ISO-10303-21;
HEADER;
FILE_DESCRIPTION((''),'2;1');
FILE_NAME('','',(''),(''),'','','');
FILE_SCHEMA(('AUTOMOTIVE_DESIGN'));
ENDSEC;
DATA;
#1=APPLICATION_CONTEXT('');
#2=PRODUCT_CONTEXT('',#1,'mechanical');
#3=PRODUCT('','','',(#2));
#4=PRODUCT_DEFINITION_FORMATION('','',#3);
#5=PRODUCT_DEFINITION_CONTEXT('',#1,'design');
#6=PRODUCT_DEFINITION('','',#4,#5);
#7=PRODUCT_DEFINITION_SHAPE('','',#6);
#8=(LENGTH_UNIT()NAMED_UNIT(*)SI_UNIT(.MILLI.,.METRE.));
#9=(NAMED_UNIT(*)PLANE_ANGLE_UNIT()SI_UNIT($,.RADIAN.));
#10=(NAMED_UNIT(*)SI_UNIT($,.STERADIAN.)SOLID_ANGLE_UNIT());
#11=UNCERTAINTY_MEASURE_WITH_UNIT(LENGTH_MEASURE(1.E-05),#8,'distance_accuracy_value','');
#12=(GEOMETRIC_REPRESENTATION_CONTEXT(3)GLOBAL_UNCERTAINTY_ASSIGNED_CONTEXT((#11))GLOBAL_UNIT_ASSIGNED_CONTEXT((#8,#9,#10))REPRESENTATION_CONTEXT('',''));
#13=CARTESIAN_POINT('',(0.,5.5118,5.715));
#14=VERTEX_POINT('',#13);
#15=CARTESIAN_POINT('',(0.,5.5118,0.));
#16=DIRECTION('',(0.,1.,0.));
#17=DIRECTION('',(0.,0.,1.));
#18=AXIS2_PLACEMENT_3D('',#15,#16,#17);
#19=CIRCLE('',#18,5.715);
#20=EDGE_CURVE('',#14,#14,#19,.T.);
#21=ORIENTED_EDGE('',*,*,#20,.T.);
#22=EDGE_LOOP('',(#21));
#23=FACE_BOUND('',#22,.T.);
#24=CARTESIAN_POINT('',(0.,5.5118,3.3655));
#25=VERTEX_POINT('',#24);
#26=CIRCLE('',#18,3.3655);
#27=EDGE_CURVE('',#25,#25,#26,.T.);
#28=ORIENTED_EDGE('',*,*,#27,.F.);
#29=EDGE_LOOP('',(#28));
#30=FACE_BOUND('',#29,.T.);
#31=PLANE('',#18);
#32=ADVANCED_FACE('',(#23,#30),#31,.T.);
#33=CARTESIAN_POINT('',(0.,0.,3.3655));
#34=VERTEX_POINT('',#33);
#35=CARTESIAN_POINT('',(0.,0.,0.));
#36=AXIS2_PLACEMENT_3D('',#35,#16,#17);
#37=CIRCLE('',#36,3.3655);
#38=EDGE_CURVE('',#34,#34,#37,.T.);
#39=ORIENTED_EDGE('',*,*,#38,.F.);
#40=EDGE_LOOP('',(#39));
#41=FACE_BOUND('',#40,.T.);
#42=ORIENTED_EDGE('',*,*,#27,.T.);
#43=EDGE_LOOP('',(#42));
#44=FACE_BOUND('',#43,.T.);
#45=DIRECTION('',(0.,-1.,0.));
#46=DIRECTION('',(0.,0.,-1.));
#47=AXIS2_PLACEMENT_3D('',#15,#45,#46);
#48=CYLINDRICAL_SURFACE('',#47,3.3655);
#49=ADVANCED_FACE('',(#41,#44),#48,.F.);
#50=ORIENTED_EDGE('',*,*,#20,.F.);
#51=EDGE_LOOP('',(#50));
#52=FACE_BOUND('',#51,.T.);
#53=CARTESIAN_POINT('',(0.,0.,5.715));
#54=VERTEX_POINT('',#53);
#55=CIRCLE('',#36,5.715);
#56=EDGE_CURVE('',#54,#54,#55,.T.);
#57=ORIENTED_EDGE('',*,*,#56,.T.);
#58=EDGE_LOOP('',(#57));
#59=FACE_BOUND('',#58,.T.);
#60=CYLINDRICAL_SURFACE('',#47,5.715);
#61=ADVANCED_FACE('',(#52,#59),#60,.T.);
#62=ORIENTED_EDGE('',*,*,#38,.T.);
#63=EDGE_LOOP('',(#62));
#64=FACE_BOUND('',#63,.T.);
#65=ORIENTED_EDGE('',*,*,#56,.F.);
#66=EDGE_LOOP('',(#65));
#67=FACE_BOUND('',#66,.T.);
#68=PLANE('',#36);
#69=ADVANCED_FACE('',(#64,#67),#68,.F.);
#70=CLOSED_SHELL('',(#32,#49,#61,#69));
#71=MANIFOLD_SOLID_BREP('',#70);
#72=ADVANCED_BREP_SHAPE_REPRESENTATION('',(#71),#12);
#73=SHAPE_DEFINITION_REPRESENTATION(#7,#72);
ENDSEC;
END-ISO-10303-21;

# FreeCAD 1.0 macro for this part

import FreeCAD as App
import Part
import Sketcher
from FreeCAD import Vector
Q = App.Units.Quantity

doc = App.newDocument("Part")
params = doc.addObject("Spreadsheet::Sheet", "Params")
for row, (alias, value) in enumerate([
    ("sketch1_diameter", "0.45 in"),
    ("sketch1_diameter2", "0.265 in"),
    ("pad1_length", "0.217 in"),
], start=1):
    params.set(f"A{row}", alias)
    params.set(f"B{row}", "=" + value)
    params.setAlias(f"B{row}", alias)

body = doc.addObject("PartDesign::Body", "Body")

# Sketch on XZ plane
sketch1 = body.newObject("Sketcher::SketchObject", "Sketch")
sketch1.AttachmentSupport = (doc.getObject("XZ_Plane"), [""])
sketch1.MapMode = "FlatFace"
sketch1.addGeometry(Part.Circle(Vector(0, 0, 0), Vector(0, 0, 1), 5.7), False)
sketch1.addGeometry(Part.Circle(Vector(0, 0, 0), Vector(0, 0, 1), 3.4), False)
sketch1.addConstraint(Sketcher.Constraint("Coincident", 0, 3, -1, 1))
sketch1.addConstraint(Sketcher.Constraint("Coincident", 1, 3, -1, 1))
sketch1.addConstraint(Sketcher.Constraint("Diameter", 0, Q("0.45 in")))
sketch1.addConstraint(Sketcher.Constraint("Diameter", 1, Q("0.265 in")))
sketch1.setExpression("Constraints[2]", "Params.sketch1_diameter")
sketch1.setExpression("Constraints[3]", "Params.sketch1_diameter2")
pad1 = body.newObject("PartDesign::Pad", "Pad")
pad1.Profile = sketch1
pad1.setExpression("Length", "Params.pad1_length")
pad1.Reversed = True

doc.recompute()
